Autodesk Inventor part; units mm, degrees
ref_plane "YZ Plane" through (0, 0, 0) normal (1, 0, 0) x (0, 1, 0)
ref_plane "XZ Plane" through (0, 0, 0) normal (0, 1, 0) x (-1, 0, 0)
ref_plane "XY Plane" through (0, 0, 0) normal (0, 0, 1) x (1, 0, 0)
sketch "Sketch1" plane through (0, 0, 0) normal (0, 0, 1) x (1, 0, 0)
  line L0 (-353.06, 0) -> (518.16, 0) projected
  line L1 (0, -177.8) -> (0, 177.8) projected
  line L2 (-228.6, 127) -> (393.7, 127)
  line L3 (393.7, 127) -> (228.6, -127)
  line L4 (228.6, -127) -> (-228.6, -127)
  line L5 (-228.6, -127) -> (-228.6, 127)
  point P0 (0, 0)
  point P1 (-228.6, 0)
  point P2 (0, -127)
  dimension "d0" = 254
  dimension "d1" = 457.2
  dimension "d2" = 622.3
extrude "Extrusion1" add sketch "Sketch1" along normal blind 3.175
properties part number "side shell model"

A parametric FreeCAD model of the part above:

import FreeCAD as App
import Part
import Sketcher
from FreeCAD import Vector
Q = App.Units.Quantity


def add_polygon(sketch, points):
    """Adds a closed chain of lines whose ends are joined by coincident constraints."""
    first, n = sketch.GeometryCount, len(points)
    for a, b in zip(points, points[1:] + points[:1]):
        sketch.addGeometry(Part.LineSegment(App.Vector(*a, 0), App.Vector(*b, 0)), False)
    for i in range(n):
        sketch.addConstraint(Sketcher.Constraint("Coincident", first + i, 2, first + (i + 1) % n, 1))

doc = App.newDocument("Part")
body = doc.addObject("PartDesign::Body", "Body")

sketch1 = body.newObject("Sketcher::SketchObject", "Sketch")
sketch1.AttachmentSupport = (doc.getObject("XY_Plane"), [""])
sketch1.MapMode = "FlatFace"
add_polygon(sketch1, [(-229, 127), (-229, -127), (229, -127), (394, 127)])
sketch1.addConstraint([
    Sketcher.Constraint("Vertical", 0),
    Sketcher.Constraint("Horizontal", 1),
    Sketcher.Constraint("Horizontal", 3),
    Sketcher.Constraint("Symmetric", 1, 2, 3, 2, -1, 1),
    Sketcher.Constraint("DistanceX", 1, 1, 1, 2, Q("18 in")),
    Sketcher.Constraint("DistanceY", 0, 2, 0, 1, Q("10 in")),
    Sketcher.Constraint("DistanceX", 3, 2, 3, 1, Q("24.5 in")),
])
pad1 = body.newObject("PartDesign::Pad", "Pad")
pad1.Profile = sketch1
pad1.Length = Q("0.125 in")

doc.recompute()
